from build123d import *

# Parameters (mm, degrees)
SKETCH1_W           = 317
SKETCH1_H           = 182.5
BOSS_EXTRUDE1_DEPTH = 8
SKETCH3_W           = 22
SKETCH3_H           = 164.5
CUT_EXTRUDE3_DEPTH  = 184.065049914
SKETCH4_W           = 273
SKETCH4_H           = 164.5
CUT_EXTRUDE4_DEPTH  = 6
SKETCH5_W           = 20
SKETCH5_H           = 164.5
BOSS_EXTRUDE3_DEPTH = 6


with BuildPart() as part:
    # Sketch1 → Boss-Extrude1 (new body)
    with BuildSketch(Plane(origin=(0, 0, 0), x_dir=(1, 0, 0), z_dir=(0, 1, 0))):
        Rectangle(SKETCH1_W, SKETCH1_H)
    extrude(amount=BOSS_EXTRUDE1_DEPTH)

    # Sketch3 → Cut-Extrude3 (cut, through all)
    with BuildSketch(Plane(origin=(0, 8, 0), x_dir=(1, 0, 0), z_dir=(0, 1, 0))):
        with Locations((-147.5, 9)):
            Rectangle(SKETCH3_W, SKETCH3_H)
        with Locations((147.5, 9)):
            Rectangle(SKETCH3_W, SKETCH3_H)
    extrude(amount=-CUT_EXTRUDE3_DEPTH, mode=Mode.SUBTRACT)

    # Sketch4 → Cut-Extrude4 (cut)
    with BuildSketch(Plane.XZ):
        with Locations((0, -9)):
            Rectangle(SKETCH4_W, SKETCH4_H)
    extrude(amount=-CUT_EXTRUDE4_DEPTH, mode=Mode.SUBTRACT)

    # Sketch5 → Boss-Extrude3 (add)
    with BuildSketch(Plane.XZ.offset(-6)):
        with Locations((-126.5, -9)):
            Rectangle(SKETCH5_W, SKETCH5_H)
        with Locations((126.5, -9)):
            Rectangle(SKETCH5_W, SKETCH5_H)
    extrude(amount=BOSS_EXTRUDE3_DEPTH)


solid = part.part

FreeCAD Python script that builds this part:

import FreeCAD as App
import Part
import Sketcher
Q = App.Units.Quantity


def add_polygon(sketch, points):
    """Adds a closed chain of lines whose ends are joined by coincident constraints."""
    first, n = sketch.GeometryCount, len(points)
    for a, b in zip(points, points[1:] + points[:1]):
        sketch.addGeometry(Part.LineSegment(App.Vector(*a, 0), App.Vector(*b, 0)), False)
    for i in range(n):
        sketch.addConstraint(Sketcher.Constraint("Coincident", first + i, 2, first + (i + 1) % n, 1))

doc = App.newDocument("Part")
params = doc.addObject("Spreadsheet::Sheet", "Params")
for row, (alias, value) in enumerate([
    ("sketch1_width", "317 mm"),
    ("sketch1_height", "182.5 mm"),
    ("pad1_length", "8 mm"),
    ("sketch2_width", "22 mm"),
    ("sketch2_height", "164.5 mm"),
    ("sketch3_width", "273 mm"),
    ("sketch3_height", "164.5 mm"),
    ("pocket2_length", "6 mm"),
    ("sketch4_width", "20 mm"),
    ("sketch4_height", "164.5 mm"),
    ("pad2_length", "6 mm"),
], start=1):
    params.set(f"A{row}", alias)
    params.set(f"B{row}", "=" + value)
    params.setAlias(f"B{row}", alias)

body = doc.addObject("PartDesign::Body", "Body")

sketch1 = body.newObject("Sketcher::SketchObject", "Sketch")
sketch1.AttachmentSupport = (doc.getObject("XZ_Plane"), [""])
sketch1.MapMode = "FlatFace"
add_polygon(sketch1, [(-158, -91), (-158, 91), (158, 91), (158, -91)])
sketch1.addConstraint([
    Sketcher.Constraint("Vertical", 0),
    Sketcher.Constraint("Horizontal", 1),
    Sketcher.Constraint("Vertical", 2),
    Sketcher.Constraint("Horizontal", 3),
    Sketcher.Constraint("Symmetric", 0, 2, 2, 2, -1, 1),
    Sketcher.Constraint("DistanceX", 1, 1, 1, 2, Q("317 mm")),
    Sketcher.Constraint("DistanceY", 0, 1, 0, 2, Q("182.5 mm")),
])
sketch1.setExpression("Constraints[9]", "Params.sketch1_width")
sketch1.setExpression("Constraints[10]", "Params.sketch1_height")
pad1 = body.newObject("PartDesign::Pad", "Pad")
pad1.Profile = sketch1
pad1.setExpression("Length", "Params.pad1_length")
pad1.Reversed = True

sketch2 = body.newObject("Sketcher::SketchObject", "Sketch001")
sketch2.AttachmentSupport = (doc.getObject("XZ_Plane"), [""])
sketch2.MapMode = "FlatFace"
sketch2.AttachmentOffset = App.Placement(App.Vector(0, 0, -8), App.Rotation())
add_polygon(sketch2, [(-158, -91), (-158, 73), (-136, 73), (-136, -91)])
add_polygon(sketch2, [(136, -91), (136, 73), (158, 73), (158, -91)])
sketch2.addConstraint([
    Sketcher.Constraint("Vertical", 0),
    Sketcher.Constraint("Horizontal", 1),
    Sketcher.Constraint("Vertical", 2),
    Sketcher.Constraint("Horizontal", 3),
    Sketcher.Constraint("Vertical", 4),
    Sketcher.Constraint("Horizontal", 5),
    Sketcher.Constraint("Vertical", 6),
    Sketcher.Constraint("Horizontal", 7),
    Sketcher.Constraint("Symmetric", 1, 2, 4, 2, -2),
    Sketcher.Constraint("Symmetric", 3, 2, 6, 2, -2),
    Sketcher.Constraint("DistanceX", 1, 1, 1, 2, Q("22 mm")),
    Sketcher.Constraint("DistanceY", 0, 1, 0, 2, Q("164.5 mm")),
    Sketcher.Constraint("DistanceX", 1, 2, 4, 2, Q("273 mm")),
    Sketcher.Constraint("DistanceY", -1, 1, 0, 2, Q("73.25 mm")),
])
sketch2.setExpression("Constraints[18]", "Params.sketch2_width")
sketch2.setExpression("Constraints[19]", "Params.sketch2_height")
pocket1 = body.newObject("PartDesign::Pocket", "Pocket")
pocket1.Profile = sketch2
pocket1.Type = "ThroughAll"
pocket1.Reversed = True

sketch3 = body.newObject("Sketcher::SketchObject", "Sketch002")
sketch3.AttachmentSupport = (doc.getObject("XZ_Plane"), [""])
sketch3.MapMode = "FlatFace"
add_polygon(sketch3, [(-136, 73), (-136, -91), (136, -91), (136, 73)])
sketch3.addConstraint([
    Sketcher.Constraint("Vertical", 0),
    Sketcher.Constraint("Horizontal", 1),
    Sketcher.Constraint("Vertical", 2),
    Sketcher.Constraint("Horizontal", 3),
    Sketcher.Constraint("DistanceX", 1, 1, 1, 2, Q("273 mm")),
    Sketcher.Constraint("DistanceY", 0, 2, 0, 1, Q("164.5 mm")),
    Sketcher.Constraint("DistanceX", 0, 2, -1, 1, Q("136.5 mm")),
    Sketcher.Constraint("DistanceY", 0, 2, -1, 1, Q("91.25 mm")),
])
sketch3.setExpression("Constraints[8]", "Params.sketch3_width")
sketch3.setExpression("Constraints[9]", "Params.sketch3_height")
pocket2 = body.newObject("PartDesign::Pocket", "Pocket001")
pocket2.Profile = sketch3
pocket2.setExpression("Length", "Params.pocket2_length")

sketch4 = body.newObject("Sketcher::SketchObject", "Sketch003")
sketch4.AttachmentSupport = (doc.getObject("XZ_Plane"), [""])
sketch4.MapMode = "FlatFace"
sketch4.AttachmentOffset = App.Placement(App.Vector(0, 0, -6), App.Rotation())
add_polygon(sketch4, [(-136, 73), (-136, -91), (-116, -91), (-116, 73)])
add_polygon(sketch4, [(116, 73), (116, -91), (136, -91), (136, 73)])
sketch4.addConstraint([
    Sketcher.Constraint("Vertical", 0),
    Sketcher.Constraint("Horizontal", 1),
    Sketcher.Constraint("Vertical", 2),
    Sketcher.Constraint("Horizontal", 3),
    Sketcher.Constraint("Vertical", 4),
    Sketcher.Constraint("Horizontal", 5),
    Sketcher.Constraint("Vertical", 6),
    Sketcher.Constraint("Horizontal", 7),
    Sketcher.Constraint("Symmetric", 1, 2, 4, 2, -2),
    Sketcher.Constraint("Symmetric", 3, 2, 6, 2, -2),
    Sketcher.Constraint("DistanceX", 1, 1, 1, 2, Q("20 mm")),
    Sketcher.Constraint("DistanceY", 0, 2, 0, 1, Q("164.5 mm")),
    Sketcher.Constraint("DistanceX", 1, 2, 4, 2, Q("233 mm")),
    Sketcher.Constraint("DistanceY", 0, 2, -1, 1, Q("91.25 mm")),
])
sketch4.setExpression("Constraints[18]", "Params.sketch4_width")
sketch4.setExpression("Constraints[19]", "Params.sketch4_height")
pad2 = body.newObject("PartDesign::Pad", "Pad001")
pad2.Profile = sketch4
pad2.setExpression("Length", "Params.pad2_length")

doc.recompute()
